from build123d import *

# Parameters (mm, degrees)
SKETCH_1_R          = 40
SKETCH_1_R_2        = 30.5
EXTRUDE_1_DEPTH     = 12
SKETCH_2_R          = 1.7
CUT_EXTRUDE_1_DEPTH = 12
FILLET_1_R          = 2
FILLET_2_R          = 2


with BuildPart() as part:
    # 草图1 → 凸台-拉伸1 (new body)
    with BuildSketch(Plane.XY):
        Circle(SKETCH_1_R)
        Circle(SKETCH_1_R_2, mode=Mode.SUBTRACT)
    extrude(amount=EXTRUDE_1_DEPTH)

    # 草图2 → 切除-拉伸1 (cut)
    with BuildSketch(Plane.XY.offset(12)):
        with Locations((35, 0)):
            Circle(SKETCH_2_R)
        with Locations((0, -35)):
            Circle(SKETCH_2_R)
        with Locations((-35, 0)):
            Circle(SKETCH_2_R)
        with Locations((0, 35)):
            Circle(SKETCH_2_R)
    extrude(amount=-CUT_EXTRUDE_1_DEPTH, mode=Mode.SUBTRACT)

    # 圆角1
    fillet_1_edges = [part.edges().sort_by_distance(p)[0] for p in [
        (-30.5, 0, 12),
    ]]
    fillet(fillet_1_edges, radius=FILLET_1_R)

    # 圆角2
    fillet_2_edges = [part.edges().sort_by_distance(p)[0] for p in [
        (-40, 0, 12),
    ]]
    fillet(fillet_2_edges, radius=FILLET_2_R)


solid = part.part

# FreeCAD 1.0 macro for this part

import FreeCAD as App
import Part
import Sketcher


def edges_at(feature, points):
    """Names of the edges that pass closest to the given points."""
    edges = feature.Shape.Edges
    near = lambda p: min(range(len(edges)), key=lambda i: edges[i].distToShape(Part.Vertex(*p))[0])
    return sorted({f"Edge{near(p) + 1}" for p in points})

doc = App.newDocument("Part")
body = doc.addObject("PartDesign::Body", "Body")

# Sketch on XY plane
sketch1 = body.newObject("Sketcher::SketchObject", "Sketch")
sketch1.AttachmentSupport = (doc.getObject("XY_Plane"), [""])
sketch1.MapMode = "FlatFace"
sketch1.addGeometry(Part.Circle(App.Vector(0, 0, 0), App.Vector(0, 0, 1), 40), False)
sketch1.addGeometry(Part.Circle(App.Vector(0, 0, 0), App.Vector(0, 0, 1), 30), False)
sketch1.addConstraint(Sketcher.Constraint("Coincident", 0, 3, -1, 1))
sketch1.addConstraint(Sketcher.Constraint("Coincident", 1, 3, -1, 1))
sketch1.addConstraint(Sketcher.Constraint("Diameter", 0, 80.0))
sketch1.addConstraint(Sketcher.Constraint("Diameter", 1, 61.0))
pad1 = body.newObject("PartDesign::Pad", "Pad")
pad1.Profile = sketch1
pad1.Length = 12

# Sketch on XY plane
sketch2 = body.newObject("Sketcher::SketchObject", "Sketch001")
sketch2.AttachmentSupport = (doc.getObject("XY_Plane"), [""])
sketch2.MapMode = "FlatFace"
sketch2.AttachmentOffset = App.Placement(App.Vector(0, 0, 12), App.Rotation())
sketch2.addGeometry(Part.Circle(App.Vector(35, 0, 0), App.Vector(0, 0, 1), 1.7), False)
sketch2.addGeometry(Part.Circle(App.Vector(0, -35, 0), App.Vector(0, 0, 1), 1.7), False)
sketch2.addGeometry(Part.Circle(App.Vector(-35, 0, 0), App.Vector(0, 0, 1), 1.7), False)
sketch2.addGeometry(Part.Circle(App.Vector(0, 35, 0), App.Vector(0, 0, 1), 1.7), False)
sketch2.addConstraint(Sketcher.Constraint("Equal", 0, 1))
sketch2.addConstraint(Sketcher.Constraint("Equal", 1, 2))
sketch2.addConstraint(Sketcher.Constraint("Equal", 2, 3))
sketch2.addConstraint(Sketcher.Constraint("Symmetric", 0, 3, 2, 3, -1, 1))
sketch2.addConstraint(Sketcher.Constraint("Symmetric", 1, 3, 3, 3, -1, 1))
sketch2.addConstraint(Sketcher.Constraint("PointOnObject", 0, 3, -1))
sketch2.addConstraint(Sketcher.Constraint("PointOnObject", 1, 3, -2))
sketch2.addConstraint(Sketcher.Constraint("Diameter", 0, 3.4))
sketch2.addConstraint(Sketcher.Constraint("DistanceX", -1, 1, 0, 3, 35.0))
sketch2.addConstraint(Sketcher.Constraint("DistanceY", 1, 3, -1, 1, 35.0))
pocket1 = body.newObject("PartDesign::Pocket", "Pocket")
pocket1.Profile = sketch2
pocket1.Length = 12
doc.recompute()

fillet = body.newObject("PartDesign::Fillet", "Fillet")
fillet.Base = (pocket1, edges_at(pocket1, [(-30.5, 0, 12)]))
fillet.Radius = 2
doc.recompute()

fillet2 = body.newObject("PartDesign::Fillet", "Fillet001")
fillet2.Base = (fillet, edges_at(fillet, [(-40, 0, 12)]))
fillet2.Radius = 2

doc.recompute()
